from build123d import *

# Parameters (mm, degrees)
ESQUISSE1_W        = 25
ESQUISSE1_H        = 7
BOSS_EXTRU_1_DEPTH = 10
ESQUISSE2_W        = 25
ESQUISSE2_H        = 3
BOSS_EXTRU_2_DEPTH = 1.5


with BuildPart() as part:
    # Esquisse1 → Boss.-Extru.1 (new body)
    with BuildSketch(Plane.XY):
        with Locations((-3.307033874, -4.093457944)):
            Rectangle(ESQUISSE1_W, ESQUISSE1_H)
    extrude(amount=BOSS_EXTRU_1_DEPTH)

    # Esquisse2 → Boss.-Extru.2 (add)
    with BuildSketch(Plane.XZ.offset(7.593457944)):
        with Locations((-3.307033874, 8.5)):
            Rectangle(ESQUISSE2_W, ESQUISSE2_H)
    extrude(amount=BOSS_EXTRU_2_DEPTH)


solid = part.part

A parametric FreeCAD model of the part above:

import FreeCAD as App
import Part
import Sketcher
Q = App.Units.Quantity

doc = App.newDocument("Part")
body = doc.addObject("PartDesign::Body", "Body")

# Sketch on XY plane
sketch1 = body.newObject("Sketcher::SketchObject", "Sketch")
sketch1.AttachmentSupport = (doc.getObject("XY_Plane"), [""])
sketch1.MapMode = "FlatFace"
sketch1.addGeometry([
    Part.LineSegment(App.Vector(-16, -1, 0), App.Vector(-16, -8, 0)),
    Part.LineSegment(App.Vector(-16, -8, 0), App.Vector(9, -8, 0)),
    Part.LineSegment(App.Vector(9, -8, 0), App.Vector(9, -1, 0)),
    Part.LineSegment(App.Vector(9, -1, 0), App.Vector(-16, -1, 0)),
], False)
sketch1.addConstraint([
    Sketcher.Constraint("Coincident", 0, 2, 1, 1),
    Sketcher.Constraint("Coincident", 1, 2, 2, 1),
    Sketcher.Constraint("Coincident", 2, 2, 3, 1),
    Sketcher.Constraint("Coincident", 3, 2, 0, 1),
    Sketcher.Constraint("Vertical", 0),
    Sketcher.Constraint("Horizontal", 1),
    Sketcher.Constraint("Vertical", 2),
    Sketcher.Constraint("Horizontal", 3),
    Sketcher.Constraint("DistanceX", 1, 1, 1, 2, Q("25 mm")),
    Sketcher.Constraint("DistanceY", 0, 2, 0, 1, Q("7 mm")),
    Sketcher.Constraint("DistanceX", 0, 2, -1, 1, Q("15.807034 mm")),
    Sketcher.Constraint("DistanceY", 0, 2, -1, 1, Q("7.593458 mm")),
])
pad1 = body.newObject("PartDesign::Pad", "Pad")
pad1.Profile = sketch1
pad1.Length = 10

# Sketch on XZ plane
sketch2 = body.newObject("Sketcher::SketchObject", "Sketch001")
sketch2.AttachmentSupport = (doc.getObject("XZ_Plane"), [""])
sketch2.MapMode = "FlatFace"
sketch2.AttachmentOffset = App.Placement(App.Vector(0, 0, 7.593458), App.Rotation())
sketch2.addGeometry([
    Part.LineSegment(App.Vector(-15.8, 10, 0), App.Vector(-15.8, 7, 0)),
    Part.LineSegment(App.Vector(-15.8, 7, 0), App.Vector(9.2, 7, 0)),
    Part.LineSegment(App.Vector(9.2, 7, 0), App.Vector(9.2, 10, 0)),
    Part.LineSegment(App.Vector(9.2, 10, 0), App.Vector(-15.8, 10, 0)),
], False)
sketch2.addConstraint([
    Sketcher.Constraint("Coincident", 0, 2, 1, 1),
    Sketcher.Constraint("Coincident", 1, 2, 2, 1),
    Sketcher.Constraint("Coincident", 2, 2, 3, 1),
    Sketcher.Constraint("Coincident", 3, 2, 0, 1),
    Sketcher.Constraint("Vertical", 0),
    Sketcher.Constraint("Horizontal", 1),
    Sketcher.Constraint("Vertical", 2),
    Sketcher.Constraint("Horizontal", 3),
    Sketcher.Constraint("DistanceX", 1, 1, 1, 2, Q("25 mm")),
    Sketcher.Constraint("DistanceY", 0, 2, 0, 1, Q("3 mm")),
    Sketcher.Constraint("DistanceY", -1, 1, 0, 2, Q("7 mm")),
    Sketcher.Constraint("DistanceX", 0, 2, -1, 1, Q("15.807034 mm")),
])
pad2 = body.newObject("PartDesign::Pad", "Pad001")
pad2.Profile = sketch2
pad2.Length = 1.5

doc.recompute()
